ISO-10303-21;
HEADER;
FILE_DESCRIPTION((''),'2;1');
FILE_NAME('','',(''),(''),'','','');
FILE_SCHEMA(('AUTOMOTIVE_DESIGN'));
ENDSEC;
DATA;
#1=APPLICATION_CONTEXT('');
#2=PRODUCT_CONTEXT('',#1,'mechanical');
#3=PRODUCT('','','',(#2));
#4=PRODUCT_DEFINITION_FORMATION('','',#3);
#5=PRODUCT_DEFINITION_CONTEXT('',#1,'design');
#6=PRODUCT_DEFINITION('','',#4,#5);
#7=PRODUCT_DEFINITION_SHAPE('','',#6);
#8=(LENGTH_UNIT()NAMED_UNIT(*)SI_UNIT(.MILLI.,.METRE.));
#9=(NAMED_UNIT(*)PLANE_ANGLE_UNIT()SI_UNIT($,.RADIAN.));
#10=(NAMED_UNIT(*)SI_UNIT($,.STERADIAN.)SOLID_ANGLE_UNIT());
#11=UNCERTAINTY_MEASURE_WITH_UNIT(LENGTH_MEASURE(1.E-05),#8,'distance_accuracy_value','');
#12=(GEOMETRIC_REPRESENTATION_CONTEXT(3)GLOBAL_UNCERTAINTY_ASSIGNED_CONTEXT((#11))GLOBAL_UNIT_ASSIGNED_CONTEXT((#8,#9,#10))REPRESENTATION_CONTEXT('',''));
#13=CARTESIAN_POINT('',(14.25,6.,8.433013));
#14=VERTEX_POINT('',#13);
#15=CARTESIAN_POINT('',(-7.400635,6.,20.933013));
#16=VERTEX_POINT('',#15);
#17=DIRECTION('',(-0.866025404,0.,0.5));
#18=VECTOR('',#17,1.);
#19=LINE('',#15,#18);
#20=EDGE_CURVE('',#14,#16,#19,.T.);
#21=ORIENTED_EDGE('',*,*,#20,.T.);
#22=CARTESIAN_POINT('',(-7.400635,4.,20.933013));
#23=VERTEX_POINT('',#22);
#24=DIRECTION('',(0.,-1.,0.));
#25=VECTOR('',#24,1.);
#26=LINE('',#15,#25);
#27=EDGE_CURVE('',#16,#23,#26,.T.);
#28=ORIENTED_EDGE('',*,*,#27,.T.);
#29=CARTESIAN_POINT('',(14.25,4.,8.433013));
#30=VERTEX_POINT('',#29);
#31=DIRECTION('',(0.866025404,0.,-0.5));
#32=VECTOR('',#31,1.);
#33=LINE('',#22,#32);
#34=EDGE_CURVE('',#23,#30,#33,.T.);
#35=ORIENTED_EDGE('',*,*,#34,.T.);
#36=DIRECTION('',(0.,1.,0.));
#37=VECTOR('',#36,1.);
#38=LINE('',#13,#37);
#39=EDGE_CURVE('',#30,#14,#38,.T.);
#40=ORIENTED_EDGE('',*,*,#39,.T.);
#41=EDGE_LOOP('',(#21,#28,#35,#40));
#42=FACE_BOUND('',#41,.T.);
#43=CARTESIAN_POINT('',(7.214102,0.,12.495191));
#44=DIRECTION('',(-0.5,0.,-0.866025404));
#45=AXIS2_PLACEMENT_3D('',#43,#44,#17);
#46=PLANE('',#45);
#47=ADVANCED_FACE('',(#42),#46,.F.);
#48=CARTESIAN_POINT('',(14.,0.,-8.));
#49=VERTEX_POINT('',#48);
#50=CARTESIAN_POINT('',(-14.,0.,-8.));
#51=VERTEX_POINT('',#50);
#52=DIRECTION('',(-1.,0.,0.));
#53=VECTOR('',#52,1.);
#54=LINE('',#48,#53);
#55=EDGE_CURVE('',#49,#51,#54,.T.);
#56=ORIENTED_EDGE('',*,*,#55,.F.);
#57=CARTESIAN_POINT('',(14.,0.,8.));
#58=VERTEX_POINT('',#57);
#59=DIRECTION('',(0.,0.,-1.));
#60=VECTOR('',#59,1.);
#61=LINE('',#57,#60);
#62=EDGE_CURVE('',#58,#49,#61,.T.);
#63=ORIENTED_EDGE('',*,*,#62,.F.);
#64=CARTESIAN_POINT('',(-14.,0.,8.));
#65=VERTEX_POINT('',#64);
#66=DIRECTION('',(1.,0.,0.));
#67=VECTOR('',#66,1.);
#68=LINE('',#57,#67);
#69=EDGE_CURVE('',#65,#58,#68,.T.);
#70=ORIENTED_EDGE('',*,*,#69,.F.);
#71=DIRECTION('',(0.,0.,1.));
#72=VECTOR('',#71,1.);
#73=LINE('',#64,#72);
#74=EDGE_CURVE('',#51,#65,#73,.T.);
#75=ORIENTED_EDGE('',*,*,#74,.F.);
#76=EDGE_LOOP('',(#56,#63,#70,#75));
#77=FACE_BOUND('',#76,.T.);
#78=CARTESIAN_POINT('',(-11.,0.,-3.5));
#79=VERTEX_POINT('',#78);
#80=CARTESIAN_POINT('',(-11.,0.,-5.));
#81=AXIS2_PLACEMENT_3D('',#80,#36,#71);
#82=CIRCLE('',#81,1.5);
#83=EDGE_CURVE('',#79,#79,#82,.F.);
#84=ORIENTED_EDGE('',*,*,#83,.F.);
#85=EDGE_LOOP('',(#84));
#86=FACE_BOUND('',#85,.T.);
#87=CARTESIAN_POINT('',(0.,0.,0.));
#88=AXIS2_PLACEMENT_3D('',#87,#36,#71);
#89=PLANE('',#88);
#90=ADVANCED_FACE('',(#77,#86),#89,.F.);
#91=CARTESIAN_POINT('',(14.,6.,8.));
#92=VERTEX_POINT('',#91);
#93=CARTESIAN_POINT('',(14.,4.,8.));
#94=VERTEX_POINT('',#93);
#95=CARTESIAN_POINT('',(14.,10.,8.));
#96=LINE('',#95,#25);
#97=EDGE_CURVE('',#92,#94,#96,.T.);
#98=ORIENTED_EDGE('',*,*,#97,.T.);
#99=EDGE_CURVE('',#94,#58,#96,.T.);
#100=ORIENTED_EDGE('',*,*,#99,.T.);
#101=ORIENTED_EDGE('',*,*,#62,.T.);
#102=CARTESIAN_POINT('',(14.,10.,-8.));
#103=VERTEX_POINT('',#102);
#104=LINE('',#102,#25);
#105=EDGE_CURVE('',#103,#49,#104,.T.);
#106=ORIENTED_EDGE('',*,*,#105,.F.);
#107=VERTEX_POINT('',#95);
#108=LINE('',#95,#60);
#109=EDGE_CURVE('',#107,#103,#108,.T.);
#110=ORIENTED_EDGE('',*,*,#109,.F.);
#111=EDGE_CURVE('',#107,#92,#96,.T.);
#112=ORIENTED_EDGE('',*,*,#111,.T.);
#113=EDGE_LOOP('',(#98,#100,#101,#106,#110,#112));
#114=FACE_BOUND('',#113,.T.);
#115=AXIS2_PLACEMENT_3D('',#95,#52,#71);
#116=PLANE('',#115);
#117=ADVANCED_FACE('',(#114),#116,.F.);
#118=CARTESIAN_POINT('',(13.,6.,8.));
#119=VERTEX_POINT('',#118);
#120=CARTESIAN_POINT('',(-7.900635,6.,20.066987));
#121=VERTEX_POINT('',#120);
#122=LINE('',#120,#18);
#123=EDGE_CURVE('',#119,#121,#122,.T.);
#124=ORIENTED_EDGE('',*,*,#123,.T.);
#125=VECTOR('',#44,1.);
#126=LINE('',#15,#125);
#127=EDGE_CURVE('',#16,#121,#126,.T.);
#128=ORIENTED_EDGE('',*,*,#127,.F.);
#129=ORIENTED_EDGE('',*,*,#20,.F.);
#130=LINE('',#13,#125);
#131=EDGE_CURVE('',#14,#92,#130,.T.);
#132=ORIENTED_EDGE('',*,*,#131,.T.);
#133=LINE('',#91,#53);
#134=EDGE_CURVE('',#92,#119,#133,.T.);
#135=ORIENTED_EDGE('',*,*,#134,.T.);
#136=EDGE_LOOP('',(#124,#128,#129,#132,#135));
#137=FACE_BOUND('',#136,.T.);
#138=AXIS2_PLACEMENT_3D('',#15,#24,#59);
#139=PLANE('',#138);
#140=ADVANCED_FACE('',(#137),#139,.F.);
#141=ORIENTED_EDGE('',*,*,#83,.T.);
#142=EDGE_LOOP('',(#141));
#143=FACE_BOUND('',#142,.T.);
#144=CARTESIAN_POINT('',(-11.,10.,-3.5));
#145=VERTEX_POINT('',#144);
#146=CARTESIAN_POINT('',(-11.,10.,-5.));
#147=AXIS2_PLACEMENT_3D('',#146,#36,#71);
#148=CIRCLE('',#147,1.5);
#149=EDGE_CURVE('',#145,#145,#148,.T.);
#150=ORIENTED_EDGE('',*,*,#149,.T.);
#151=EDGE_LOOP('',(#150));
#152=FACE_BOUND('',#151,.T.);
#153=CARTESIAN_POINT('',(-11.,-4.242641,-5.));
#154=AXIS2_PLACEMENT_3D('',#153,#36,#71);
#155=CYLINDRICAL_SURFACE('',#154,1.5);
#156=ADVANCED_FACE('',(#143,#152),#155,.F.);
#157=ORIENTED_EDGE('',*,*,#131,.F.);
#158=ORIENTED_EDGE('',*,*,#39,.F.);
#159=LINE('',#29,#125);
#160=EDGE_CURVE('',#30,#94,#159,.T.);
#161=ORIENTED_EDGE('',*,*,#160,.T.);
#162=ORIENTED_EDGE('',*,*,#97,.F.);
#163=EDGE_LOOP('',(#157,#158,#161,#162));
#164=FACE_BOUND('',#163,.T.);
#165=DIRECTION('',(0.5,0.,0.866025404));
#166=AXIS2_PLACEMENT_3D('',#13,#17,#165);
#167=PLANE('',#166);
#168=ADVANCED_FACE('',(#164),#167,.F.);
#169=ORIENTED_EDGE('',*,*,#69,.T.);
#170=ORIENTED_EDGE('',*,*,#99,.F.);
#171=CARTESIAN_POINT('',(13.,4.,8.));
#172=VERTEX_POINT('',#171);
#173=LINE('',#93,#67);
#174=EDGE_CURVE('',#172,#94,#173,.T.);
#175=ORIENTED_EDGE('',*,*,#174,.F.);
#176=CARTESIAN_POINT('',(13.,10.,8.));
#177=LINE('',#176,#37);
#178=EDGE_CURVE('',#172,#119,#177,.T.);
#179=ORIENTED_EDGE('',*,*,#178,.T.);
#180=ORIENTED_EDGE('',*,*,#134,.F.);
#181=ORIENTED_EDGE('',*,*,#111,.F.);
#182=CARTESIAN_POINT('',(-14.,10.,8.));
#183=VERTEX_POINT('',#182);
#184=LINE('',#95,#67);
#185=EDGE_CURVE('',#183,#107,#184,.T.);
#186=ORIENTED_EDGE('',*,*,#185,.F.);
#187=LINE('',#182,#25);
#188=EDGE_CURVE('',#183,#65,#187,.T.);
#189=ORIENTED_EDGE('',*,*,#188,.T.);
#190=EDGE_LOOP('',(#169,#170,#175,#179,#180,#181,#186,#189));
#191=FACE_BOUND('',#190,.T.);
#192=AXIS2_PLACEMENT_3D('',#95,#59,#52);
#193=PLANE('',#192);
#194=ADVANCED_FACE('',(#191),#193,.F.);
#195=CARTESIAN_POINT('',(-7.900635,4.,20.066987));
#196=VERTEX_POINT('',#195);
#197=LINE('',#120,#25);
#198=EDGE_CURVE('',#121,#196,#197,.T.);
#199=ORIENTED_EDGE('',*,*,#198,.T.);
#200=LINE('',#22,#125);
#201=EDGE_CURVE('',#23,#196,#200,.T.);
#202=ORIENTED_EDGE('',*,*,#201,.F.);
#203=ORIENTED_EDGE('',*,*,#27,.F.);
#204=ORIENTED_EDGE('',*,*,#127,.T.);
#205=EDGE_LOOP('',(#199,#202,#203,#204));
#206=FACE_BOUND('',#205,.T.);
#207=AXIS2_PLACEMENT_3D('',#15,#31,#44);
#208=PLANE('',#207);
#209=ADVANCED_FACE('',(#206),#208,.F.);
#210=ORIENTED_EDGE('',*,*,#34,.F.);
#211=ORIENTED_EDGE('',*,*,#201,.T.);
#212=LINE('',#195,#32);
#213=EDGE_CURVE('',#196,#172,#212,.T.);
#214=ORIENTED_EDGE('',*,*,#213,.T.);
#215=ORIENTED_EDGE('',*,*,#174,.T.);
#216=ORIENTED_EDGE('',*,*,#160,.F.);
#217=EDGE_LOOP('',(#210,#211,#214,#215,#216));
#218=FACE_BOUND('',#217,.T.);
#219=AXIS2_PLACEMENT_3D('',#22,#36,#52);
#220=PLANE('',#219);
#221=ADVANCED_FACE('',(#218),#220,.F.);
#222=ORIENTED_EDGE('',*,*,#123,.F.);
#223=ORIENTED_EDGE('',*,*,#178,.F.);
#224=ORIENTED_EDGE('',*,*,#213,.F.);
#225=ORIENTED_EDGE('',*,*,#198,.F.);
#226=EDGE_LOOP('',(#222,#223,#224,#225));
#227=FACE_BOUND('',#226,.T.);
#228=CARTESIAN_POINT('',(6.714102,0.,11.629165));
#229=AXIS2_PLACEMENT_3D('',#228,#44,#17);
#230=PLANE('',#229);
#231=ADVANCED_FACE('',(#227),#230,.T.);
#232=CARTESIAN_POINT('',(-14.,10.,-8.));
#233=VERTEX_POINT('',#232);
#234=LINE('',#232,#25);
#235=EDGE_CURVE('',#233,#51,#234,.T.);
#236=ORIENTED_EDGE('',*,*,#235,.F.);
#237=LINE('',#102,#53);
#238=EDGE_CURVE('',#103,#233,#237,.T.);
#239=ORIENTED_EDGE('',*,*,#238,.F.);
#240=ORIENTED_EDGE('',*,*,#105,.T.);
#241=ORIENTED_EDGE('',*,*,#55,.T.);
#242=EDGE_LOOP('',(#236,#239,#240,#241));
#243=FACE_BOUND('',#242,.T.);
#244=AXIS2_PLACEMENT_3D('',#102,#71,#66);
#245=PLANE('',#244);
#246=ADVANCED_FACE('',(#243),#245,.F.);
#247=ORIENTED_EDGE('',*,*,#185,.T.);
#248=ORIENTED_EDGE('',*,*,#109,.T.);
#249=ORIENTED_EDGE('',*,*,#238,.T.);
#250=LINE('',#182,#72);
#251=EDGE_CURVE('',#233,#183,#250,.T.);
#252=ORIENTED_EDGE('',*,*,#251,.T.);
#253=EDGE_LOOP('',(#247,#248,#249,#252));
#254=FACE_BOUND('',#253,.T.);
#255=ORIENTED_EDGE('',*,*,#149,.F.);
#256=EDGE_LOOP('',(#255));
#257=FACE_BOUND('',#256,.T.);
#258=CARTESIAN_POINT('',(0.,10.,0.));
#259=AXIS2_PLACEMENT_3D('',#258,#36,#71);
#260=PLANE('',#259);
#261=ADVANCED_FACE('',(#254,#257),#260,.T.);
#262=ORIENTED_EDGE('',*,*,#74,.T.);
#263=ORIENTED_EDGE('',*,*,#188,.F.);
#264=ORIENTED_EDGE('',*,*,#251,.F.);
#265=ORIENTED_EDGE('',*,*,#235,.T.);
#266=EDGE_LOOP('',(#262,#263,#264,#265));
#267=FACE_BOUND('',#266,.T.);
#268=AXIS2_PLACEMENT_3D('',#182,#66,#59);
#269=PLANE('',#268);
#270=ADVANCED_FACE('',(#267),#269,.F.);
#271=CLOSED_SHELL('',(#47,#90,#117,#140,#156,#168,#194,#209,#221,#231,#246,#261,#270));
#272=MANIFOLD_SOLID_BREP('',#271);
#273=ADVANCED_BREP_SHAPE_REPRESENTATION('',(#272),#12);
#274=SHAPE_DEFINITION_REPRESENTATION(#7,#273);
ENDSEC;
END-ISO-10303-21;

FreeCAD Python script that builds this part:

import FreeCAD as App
import Part
import Sketcher

V = App.Vector

doc = App.newDocument("Part")
body = doc.addObject("PartDesign::Body", "Body")

# Sketch on XZ plane
sketch1 = body.newObject("Sketcher::SketchObject", "Sketch")
sketch1.AttachmentSupport = (doc.getObject("XZ_Plane"), [""])
sketch1.MapMode = "FlatFace"
sketch1.addGeometry([
    Part.LineSegment(V(-14, -8, 0), V(-14, 8, 0)),
    Part.LineSegment(V(-14, 8, 0), V(14, 8, 0)),
    Part.LineSegment(V(14, 8, 0), V(14, -8, 0)),
    Part.LineSegment(V(14, -8, 0), V(-14, -8, 0)),
], False)
sketch1.addConstraint([
    Sketcher.Constraint("Coincident", 0, 2, 1, 1),
    Sketcher.Constraint("Coincident", 1, 2, 2, 1),
    Sketcher.Constraint("Coincident", 2, 2, 3, 1),
    Sketcher.Constraint("Coincident", 3, 2, 0, 1),
    Sketcher.Constraint("Vertical", 0),
    Sketcher.Constraint("Horizontal", 1),
    Sketcher.Constraint("Vertical", 2),
    Sketcher.Constraint("Horizontal", 3),
    Sketcher.Constraint("Symmetric", 0, 2, 2, 2, -1, 1),
    Sketcher.Constraint("DistanceX", 1, 1, 1, 2, 28.0),
    Sketcher.Constraint("DistanceY", 0, 1, 0, 2, 16.0),
])
pad1 = body.newObject("PartDesign::Pad", "Pad")
pad1.Profile = sketch1
pad1.Length = 10
pad1.Reversed = True

# Sketch on an angled plane
sketch2 = body.newObject("Sketcher::SketchObject", "Sketch001")
sketch2.Placement = App.Placement(V(6.964102, 0, 12.062178), App.Rotation(V(0, -1, 0), V(0.866025404, 0, -0.5), V(0.5, 0, 0.866025404), "ZXY"))
sketch2.addGeometry([
    Part.LineSegment(V(-6, 8.124356, 0), V(-6, -16.875644, 0)),
    Part.LineSegment(V(-6, -16.875644, 0), V(-4, -16.875644, 0)),
    Part.LineSegment(V(-4, -16.875644, 0), V(-4, 8.124356, 0)),
    Part.LineSegment(V(-4, 8.124356, 0), V(-6, 8.124356, 0)),
], False)
sketch2.addConstraint([
    Sketcher.Constraint("Coincident", 0, 2, 1, 1),
    Sketcher.Constraint("Coincident", 1, 2, 2, 1),
    Sketcher.Constraint("Coincident", 2, 2, 3, 1),
    Sketcher.Constraint("Coincident", 3, 2, 0, 1),
    Sketcher.Constraint("Vertical", 0),
    Sketcher.Constraint("Horizontal", 1),
    Sketcher.Constraint("Vertical", 2),
    Sketcher.Constraint("Horizontal", 3),
    Sketcher.Constraint("DistanceX", 1, 1, 1, 2, 2.0),
    Sketcher.Constraint("DistanceY", 0, 2, 0, 1, 25.0),
    Sketcher.Constraint("DistanceX", 0, 2, -1, 1, 6.0),
    Sketcher.Constraint("DistanceY", 0, 2, -1, 1, 16.875644),
])
pad2 = body.newObject("PartDesign::Pad", "Pad001")
pad2.Profile = sketch2
pad2.Length = 1
pad2.Midplane = True

# Sketch on XZ plane
sketch3 = body.newObject("Sketcher::SketchObject", "Sketch002")
sketch3.AttachmentSupport = (doc.getObject("XZ_Plane"), [""])
sketch3.MapMode = "FlatFace"
sketch3.AttachmentOffset = App.Placement(V(0, 0, -10), App.Rotation())
sketch3.addGeometry(Part.Circle(V(-11, -5, 0), V(0, 0, 1), 1.5), False)
sketch3.addConstraint([
    Sketcher.Constraint("Diameter", 0, 3.0),
    Sketcher.Constraint("DistanceX", 0, 3, -1, 1, 11.0),
    Sketcher.Constraint("DistanceY", 0, 3, -1, 1, 5.0),
])
pocket1 = body.newObject("PartDesign::Pocket", "Pocket")
pocket1.Profile = sketch3
pocket1.Length = 10
pocket1.Reversed = True

doc.recompute()
